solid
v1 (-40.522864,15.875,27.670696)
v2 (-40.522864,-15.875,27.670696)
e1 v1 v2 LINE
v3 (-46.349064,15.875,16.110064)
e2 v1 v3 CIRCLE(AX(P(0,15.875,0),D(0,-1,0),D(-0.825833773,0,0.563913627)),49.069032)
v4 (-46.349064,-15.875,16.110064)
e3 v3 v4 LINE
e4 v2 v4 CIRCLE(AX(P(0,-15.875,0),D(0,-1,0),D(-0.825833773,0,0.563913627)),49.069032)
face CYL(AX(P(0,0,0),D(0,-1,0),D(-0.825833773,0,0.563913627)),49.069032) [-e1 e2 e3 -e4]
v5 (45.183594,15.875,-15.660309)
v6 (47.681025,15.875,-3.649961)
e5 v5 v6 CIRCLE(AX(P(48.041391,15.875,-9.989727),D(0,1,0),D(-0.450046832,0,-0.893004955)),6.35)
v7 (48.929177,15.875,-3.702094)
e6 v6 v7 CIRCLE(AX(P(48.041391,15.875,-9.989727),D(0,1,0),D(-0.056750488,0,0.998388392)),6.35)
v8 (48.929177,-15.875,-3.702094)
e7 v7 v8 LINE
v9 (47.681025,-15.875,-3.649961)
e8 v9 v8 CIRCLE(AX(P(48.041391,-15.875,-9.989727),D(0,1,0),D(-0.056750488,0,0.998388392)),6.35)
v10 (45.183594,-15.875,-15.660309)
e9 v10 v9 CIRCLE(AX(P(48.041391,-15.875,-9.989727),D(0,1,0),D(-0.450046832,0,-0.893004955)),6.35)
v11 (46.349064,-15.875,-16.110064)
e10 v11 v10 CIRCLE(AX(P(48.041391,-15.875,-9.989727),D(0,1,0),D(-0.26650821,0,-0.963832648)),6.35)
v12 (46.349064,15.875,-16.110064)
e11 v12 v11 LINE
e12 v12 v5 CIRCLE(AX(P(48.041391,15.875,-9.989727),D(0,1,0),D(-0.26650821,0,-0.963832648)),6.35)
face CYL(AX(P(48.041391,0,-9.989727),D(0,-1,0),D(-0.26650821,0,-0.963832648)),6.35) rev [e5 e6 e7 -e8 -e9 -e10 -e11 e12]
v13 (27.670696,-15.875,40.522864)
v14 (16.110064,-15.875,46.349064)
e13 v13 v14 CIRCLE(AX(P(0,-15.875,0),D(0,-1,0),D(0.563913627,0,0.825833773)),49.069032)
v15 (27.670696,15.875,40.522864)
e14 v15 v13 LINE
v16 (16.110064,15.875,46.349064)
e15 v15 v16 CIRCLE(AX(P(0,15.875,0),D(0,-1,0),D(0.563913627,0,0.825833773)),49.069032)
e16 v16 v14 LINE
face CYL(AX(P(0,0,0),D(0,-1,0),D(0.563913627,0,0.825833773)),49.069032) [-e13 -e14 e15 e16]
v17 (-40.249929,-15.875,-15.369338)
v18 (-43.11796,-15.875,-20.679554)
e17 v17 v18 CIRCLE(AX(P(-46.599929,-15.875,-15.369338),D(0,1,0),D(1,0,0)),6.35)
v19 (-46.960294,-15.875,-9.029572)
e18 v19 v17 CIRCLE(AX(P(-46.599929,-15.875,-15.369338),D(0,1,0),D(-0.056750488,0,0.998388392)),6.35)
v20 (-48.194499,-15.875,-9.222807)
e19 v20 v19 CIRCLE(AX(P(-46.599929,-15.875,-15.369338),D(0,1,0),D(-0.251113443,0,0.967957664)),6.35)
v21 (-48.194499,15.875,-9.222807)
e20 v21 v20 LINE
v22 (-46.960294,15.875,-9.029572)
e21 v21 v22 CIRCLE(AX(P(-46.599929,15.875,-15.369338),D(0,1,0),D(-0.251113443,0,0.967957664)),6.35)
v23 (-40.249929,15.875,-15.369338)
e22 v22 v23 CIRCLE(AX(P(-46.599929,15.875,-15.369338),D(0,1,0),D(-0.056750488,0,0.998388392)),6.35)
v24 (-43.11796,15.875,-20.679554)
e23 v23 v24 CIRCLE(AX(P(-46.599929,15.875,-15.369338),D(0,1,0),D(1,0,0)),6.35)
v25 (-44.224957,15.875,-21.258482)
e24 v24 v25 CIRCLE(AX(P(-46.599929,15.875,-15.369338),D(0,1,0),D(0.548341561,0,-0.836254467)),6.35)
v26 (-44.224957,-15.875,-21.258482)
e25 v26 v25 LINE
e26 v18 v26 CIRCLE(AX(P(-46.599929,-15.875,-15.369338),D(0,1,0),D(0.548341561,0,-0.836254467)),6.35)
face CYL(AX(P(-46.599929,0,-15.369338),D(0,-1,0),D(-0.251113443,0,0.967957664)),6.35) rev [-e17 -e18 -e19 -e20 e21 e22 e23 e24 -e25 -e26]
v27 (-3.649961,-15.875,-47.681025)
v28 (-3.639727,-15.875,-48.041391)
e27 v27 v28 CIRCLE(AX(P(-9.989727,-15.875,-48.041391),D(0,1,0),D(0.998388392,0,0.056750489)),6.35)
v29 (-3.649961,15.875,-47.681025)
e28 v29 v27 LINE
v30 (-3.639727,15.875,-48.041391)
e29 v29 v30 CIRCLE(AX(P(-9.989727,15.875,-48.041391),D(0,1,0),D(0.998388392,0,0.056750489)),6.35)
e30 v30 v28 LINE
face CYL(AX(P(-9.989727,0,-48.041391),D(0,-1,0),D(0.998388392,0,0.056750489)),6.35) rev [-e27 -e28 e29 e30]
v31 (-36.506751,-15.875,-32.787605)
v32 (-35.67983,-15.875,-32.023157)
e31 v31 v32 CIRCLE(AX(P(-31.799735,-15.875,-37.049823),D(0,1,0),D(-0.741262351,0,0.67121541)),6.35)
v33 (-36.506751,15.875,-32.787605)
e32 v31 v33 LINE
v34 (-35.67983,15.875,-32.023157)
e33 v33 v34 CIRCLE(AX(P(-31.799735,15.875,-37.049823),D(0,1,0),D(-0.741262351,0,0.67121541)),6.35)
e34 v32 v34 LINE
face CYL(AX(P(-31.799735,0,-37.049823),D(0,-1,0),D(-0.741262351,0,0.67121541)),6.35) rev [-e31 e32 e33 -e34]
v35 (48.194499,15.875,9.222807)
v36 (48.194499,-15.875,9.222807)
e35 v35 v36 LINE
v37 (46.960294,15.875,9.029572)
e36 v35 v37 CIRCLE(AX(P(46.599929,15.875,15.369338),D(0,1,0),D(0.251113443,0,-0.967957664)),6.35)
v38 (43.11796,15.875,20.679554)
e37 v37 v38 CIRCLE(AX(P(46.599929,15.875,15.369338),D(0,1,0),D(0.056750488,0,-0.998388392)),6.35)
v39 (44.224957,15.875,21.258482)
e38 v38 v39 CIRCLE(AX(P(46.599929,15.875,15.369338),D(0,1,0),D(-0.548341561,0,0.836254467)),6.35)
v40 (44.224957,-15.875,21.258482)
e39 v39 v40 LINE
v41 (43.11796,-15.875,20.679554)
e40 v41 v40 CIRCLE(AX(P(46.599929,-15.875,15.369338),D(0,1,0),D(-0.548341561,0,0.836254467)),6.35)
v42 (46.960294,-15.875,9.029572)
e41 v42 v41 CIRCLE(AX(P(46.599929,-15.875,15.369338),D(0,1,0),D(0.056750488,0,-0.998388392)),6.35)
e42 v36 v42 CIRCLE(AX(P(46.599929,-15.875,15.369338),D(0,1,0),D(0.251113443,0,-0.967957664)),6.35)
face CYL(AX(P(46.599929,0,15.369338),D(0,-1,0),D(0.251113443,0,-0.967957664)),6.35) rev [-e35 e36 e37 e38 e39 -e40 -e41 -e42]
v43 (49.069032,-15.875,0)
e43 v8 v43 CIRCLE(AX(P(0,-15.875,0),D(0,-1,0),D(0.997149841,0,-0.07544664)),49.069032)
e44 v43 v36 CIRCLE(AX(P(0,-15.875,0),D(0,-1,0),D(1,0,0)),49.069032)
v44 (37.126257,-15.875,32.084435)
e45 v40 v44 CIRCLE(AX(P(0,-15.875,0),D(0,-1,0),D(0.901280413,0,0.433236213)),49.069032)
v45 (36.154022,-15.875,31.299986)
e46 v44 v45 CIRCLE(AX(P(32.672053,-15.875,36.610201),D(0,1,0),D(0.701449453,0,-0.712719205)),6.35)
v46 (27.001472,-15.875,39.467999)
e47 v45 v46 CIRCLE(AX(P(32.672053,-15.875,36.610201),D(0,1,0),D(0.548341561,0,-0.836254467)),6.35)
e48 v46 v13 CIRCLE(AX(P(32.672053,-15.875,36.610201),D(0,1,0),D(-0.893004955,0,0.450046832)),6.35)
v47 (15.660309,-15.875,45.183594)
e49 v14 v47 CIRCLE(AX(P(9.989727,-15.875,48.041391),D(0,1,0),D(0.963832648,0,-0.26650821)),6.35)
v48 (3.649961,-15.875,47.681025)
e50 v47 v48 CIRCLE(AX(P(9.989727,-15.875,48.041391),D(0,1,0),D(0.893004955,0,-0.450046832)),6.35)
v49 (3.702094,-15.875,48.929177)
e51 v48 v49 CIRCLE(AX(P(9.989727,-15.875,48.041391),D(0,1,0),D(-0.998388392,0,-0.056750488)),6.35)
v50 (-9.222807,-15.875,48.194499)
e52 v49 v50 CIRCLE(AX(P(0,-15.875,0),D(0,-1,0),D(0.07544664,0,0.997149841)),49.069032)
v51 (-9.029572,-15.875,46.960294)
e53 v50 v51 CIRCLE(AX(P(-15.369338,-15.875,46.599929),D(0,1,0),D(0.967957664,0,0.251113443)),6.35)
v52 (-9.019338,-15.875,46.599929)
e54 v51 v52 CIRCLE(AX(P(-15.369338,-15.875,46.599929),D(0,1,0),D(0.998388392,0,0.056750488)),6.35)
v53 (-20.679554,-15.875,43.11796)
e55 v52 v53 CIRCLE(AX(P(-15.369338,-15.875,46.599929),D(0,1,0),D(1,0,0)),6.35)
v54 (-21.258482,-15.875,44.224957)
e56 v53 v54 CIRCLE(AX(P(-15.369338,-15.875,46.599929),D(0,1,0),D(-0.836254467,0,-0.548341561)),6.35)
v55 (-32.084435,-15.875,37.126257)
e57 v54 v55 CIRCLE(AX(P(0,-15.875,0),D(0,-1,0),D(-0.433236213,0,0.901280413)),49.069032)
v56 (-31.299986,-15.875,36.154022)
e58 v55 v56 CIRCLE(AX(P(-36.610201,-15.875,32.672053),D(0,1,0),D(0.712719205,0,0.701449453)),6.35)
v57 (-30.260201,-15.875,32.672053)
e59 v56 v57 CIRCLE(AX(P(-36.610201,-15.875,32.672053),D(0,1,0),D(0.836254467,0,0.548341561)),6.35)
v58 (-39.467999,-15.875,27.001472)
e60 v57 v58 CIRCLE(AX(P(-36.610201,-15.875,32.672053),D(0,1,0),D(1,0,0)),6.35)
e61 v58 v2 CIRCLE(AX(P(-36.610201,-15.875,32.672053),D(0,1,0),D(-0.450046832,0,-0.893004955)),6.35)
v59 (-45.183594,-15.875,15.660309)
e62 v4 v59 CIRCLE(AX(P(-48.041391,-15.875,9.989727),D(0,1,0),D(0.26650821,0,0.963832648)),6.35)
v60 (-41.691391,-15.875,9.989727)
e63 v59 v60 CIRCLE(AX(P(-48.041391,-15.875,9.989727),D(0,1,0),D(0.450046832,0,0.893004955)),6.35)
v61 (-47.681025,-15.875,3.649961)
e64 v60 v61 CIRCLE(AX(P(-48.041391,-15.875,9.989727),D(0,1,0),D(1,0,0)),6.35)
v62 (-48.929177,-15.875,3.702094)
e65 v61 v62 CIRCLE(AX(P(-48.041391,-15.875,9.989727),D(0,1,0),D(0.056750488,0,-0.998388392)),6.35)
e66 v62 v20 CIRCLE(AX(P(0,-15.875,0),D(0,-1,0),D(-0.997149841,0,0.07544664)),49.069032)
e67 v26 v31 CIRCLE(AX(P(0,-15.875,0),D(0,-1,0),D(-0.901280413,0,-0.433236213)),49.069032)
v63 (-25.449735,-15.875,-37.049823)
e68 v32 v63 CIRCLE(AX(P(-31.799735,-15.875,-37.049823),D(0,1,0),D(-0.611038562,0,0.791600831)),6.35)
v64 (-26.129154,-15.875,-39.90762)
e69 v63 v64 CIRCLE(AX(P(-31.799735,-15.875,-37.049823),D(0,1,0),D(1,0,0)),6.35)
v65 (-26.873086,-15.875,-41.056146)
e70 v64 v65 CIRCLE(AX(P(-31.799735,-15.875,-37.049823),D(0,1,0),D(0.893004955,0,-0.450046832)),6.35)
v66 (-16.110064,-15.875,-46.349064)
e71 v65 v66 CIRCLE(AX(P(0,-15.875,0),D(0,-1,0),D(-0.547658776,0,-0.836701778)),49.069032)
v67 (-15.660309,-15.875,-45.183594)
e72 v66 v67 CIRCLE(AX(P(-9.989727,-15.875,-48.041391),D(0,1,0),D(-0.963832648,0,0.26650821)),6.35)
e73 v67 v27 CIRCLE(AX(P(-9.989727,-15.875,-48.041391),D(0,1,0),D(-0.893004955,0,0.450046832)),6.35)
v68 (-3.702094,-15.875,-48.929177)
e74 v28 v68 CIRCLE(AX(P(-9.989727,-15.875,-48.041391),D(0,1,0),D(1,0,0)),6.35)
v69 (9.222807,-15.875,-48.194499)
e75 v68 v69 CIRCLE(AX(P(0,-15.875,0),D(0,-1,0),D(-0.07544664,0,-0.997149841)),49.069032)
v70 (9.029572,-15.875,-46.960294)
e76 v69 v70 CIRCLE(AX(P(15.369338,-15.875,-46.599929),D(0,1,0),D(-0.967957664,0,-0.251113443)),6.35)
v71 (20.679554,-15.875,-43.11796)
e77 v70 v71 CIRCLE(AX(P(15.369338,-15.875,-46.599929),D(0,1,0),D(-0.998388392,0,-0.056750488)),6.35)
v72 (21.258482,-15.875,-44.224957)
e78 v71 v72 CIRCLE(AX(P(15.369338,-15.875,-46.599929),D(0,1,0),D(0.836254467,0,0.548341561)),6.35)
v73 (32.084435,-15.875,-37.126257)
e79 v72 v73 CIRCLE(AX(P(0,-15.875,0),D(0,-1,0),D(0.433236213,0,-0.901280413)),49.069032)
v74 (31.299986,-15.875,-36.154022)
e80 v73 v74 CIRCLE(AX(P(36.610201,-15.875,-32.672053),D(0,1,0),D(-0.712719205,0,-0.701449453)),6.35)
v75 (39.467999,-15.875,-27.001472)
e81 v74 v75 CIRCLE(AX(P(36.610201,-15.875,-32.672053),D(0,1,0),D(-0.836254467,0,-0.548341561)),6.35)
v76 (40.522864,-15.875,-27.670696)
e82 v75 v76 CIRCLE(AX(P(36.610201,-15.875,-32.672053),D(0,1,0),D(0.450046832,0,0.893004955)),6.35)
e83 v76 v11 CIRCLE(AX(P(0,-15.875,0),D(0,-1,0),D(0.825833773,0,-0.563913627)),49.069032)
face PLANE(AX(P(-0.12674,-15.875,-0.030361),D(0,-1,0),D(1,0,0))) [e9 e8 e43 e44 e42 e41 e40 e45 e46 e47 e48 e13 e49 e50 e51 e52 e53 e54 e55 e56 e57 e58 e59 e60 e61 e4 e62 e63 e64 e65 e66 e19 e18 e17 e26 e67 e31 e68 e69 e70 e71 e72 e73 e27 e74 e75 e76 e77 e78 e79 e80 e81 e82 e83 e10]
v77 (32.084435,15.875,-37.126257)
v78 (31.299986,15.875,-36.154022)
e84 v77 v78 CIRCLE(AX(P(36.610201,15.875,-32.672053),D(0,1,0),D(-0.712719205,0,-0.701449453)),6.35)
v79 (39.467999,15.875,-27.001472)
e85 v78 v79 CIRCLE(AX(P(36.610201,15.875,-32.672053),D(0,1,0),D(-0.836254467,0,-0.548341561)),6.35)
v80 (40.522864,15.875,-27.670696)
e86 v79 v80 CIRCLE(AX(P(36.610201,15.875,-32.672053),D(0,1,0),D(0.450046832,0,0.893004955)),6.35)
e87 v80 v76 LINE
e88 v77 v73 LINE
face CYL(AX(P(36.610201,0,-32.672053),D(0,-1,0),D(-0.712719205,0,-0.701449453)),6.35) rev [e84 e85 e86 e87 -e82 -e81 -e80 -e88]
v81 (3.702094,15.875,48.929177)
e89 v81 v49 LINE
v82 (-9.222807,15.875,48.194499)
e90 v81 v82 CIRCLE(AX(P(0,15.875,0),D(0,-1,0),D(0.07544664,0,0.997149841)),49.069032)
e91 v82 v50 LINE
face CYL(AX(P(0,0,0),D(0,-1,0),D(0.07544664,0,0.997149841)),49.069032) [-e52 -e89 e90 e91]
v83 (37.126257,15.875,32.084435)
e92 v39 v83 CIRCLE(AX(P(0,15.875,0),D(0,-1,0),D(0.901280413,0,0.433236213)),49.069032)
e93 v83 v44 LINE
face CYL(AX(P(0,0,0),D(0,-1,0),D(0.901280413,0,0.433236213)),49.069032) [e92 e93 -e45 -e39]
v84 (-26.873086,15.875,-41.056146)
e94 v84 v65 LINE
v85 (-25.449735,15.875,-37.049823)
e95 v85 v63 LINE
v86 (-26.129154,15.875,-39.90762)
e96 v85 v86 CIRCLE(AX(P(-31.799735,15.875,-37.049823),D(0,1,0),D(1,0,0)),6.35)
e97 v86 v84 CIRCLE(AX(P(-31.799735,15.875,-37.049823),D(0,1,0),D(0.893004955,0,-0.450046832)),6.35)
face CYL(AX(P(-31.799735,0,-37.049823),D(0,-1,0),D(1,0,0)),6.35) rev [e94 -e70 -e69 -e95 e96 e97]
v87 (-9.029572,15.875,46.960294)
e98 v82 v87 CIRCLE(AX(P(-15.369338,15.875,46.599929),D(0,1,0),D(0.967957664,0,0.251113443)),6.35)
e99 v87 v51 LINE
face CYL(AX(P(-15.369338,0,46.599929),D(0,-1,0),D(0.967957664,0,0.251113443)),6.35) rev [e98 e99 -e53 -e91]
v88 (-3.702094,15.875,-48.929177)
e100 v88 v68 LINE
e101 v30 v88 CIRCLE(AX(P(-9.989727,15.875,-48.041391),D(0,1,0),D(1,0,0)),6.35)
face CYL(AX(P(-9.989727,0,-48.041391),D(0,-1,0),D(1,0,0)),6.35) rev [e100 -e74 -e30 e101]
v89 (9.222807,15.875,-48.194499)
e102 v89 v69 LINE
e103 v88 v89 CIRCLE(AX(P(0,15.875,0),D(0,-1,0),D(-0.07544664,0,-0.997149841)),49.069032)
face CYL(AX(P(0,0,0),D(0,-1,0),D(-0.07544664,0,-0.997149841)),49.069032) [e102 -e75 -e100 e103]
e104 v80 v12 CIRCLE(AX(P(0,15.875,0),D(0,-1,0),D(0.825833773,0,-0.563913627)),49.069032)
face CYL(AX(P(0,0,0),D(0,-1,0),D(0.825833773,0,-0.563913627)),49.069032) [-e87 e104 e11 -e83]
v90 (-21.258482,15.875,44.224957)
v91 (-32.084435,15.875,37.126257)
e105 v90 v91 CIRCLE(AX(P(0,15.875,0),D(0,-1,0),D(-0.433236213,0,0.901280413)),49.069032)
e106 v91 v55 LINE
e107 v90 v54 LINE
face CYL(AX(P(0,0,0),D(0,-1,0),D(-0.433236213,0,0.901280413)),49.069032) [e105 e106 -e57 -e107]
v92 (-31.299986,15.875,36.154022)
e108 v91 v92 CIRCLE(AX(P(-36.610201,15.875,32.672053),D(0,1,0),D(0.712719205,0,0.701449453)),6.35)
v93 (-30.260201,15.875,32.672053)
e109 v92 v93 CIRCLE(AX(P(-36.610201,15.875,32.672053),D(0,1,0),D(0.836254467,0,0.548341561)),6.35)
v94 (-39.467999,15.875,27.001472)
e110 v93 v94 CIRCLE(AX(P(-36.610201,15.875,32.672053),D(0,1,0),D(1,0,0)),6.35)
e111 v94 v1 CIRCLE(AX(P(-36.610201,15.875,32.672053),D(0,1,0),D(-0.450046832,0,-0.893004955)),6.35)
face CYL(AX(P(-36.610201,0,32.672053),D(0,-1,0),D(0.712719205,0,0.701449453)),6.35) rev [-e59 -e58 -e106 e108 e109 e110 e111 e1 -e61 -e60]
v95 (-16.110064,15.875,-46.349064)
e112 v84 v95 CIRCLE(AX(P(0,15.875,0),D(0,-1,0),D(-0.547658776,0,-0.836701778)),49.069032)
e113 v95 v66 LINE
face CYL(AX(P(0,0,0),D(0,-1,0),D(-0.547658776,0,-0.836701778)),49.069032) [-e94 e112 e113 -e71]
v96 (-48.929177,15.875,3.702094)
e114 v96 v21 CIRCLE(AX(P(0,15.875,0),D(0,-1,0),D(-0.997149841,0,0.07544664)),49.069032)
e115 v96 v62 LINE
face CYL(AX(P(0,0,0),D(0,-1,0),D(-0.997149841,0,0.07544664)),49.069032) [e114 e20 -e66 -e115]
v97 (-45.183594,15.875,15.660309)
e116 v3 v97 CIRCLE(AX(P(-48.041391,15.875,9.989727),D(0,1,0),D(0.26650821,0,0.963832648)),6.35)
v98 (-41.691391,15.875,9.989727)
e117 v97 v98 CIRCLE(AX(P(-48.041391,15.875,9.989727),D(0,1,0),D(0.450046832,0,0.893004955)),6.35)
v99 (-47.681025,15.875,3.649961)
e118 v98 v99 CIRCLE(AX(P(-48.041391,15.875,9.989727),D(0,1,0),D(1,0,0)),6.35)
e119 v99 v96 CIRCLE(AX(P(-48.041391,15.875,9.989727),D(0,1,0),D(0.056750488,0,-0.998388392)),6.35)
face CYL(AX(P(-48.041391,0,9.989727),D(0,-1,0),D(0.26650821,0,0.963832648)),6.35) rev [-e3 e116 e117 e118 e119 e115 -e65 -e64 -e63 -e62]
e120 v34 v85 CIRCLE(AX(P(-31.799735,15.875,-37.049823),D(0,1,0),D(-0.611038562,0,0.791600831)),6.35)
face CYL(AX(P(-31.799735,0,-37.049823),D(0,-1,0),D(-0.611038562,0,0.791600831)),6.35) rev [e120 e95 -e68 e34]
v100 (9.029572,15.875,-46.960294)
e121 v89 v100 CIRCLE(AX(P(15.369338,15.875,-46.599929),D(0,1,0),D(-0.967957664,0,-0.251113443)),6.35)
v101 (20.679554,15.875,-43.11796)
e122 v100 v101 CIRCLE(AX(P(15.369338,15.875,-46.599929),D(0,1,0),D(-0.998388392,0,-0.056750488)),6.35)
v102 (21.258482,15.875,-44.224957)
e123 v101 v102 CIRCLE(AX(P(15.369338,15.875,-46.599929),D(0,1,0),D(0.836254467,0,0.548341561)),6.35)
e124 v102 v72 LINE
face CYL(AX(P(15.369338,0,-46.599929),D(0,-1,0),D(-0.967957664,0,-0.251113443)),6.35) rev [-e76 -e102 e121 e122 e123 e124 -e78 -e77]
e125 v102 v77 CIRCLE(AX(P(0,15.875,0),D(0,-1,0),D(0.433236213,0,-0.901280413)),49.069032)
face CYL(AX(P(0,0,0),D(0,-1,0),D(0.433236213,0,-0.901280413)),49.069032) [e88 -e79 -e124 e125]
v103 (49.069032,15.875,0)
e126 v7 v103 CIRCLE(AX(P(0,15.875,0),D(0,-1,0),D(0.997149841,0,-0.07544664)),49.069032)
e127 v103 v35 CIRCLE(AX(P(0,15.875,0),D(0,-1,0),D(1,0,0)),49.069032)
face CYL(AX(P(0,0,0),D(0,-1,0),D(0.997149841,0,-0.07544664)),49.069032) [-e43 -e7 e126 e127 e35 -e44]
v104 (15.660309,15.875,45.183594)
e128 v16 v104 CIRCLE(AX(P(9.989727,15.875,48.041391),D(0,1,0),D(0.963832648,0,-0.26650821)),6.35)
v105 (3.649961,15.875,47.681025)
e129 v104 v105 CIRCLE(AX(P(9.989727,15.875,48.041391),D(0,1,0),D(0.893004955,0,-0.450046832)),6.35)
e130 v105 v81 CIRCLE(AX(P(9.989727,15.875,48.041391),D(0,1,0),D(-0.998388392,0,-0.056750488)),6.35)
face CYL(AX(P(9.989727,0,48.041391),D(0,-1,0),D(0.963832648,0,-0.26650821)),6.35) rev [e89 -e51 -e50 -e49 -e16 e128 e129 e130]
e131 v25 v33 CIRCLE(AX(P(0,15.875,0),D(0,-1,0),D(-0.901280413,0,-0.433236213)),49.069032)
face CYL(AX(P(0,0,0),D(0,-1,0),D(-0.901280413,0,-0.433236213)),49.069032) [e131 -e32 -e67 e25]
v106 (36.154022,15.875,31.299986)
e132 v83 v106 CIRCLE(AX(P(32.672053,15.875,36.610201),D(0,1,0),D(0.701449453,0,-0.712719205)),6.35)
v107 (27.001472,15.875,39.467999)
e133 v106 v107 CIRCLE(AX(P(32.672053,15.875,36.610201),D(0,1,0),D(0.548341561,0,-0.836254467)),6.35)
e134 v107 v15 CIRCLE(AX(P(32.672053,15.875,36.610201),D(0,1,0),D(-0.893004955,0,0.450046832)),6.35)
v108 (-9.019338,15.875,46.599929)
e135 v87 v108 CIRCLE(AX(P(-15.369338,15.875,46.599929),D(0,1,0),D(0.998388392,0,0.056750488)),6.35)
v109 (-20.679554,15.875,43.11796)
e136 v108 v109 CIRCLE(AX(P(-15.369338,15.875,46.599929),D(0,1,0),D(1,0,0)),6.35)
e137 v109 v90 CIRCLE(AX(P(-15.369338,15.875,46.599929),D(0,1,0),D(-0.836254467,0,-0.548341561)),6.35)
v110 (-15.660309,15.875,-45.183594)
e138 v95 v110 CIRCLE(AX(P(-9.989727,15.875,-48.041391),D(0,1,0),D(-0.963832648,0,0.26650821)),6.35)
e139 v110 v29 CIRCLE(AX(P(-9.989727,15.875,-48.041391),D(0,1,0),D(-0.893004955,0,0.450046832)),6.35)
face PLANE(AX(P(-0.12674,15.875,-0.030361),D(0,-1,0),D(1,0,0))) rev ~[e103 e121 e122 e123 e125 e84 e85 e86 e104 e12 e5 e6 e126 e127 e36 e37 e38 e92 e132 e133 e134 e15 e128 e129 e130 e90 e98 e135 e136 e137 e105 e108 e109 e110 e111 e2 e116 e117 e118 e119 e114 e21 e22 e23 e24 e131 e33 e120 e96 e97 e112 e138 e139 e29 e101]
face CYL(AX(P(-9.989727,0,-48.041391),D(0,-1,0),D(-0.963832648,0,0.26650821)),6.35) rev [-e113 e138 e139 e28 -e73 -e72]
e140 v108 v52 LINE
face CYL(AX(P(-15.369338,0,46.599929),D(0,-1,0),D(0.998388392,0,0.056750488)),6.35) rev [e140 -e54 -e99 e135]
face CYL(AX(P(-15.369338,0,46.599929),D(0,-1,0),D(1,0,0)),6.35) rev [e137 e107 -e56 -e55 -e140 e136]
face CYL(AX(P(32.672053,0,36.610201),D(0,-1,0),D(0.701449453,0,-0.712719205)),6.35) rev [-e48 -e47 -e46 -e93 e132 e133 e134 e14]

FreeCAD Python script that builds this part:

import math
import FreeCAD as App
import Part
import Sketcher
from FreeCAD import Vector
Q = App.Units.Quantity

doc = App.newDocument("Part")
params = doc.addObject("Spreadsheet::Sheet", "Params")
for row, (alias, value) in enumerate([
    ("sketch1_radius", "0.25 in"),
    ("pad1_length", "1.25 in"),
], start=1):
    params.set(f"A{row}", alias)
    params.set(f"B{row}", "=" + value)
    params.setAlias(f"B{row}", alias)

body = doc.addObject("PartDesign::Body", "Body")

sketch1 = body.newObject("Sketcher::SketchObject", "Sketch")
sketch1.AttachmentSupport = (doc.getObject("XZ_Plane"), [""])
sketch1.MapMode = "FlatFace"
sketch1.addGeometry(Part.ArcOfCircle(Part.Circle(Vector(-31.799735, -37.049823, 0), Vector(0, 0, 1), 6.35), math.radians(0), math.radians(127.664636)), False)
sketch1.addGeometry(Part.ArcOfCircle(Part.Circle(Vector(-31.799735, -37.049823, 0), Vector(0, 0, 1), 6.35), math.radians(-26.746689), math.radians(0)), False)
sketch1.addGeometry(Part.ArcOfCircle(Part.Circle(Vector(-31.799735, -37.049823, 0), Vector(0, 0, 1), 6.35), math.radians(-39.117817), math.radians(-26.746689)), False)
sketch1.addGeometry(Part.ArcOfCircle(Part.Circle(Vector(0, 0, 0), Vector(0, 0, 1), 49.069032), math.radians(-123.206543), math.radians(-109.166492)), False)
sketch1.addGeometry(Part.ArcOfCircle(Part.Circle(Vector(-9.989727, -48.041391, 0), Vector(0, 0, 1), 6.35), math.radians(153.253311), math.radians(164.54341)), False)
sketch1.addGeometry(Part.ArcOfCircle(Part.Circle(Vector(-9.989727, -48.041391, 0), Vector(0, 0, 1), 6.35), math.radians(3.253311), math.radians(153.253311)), False)
sketch1.addGeometry(Part.ArcOfCircle(Part.Circle(Vector(-9.989727, -48.041391, 0), Vector(0, 0, 1), 6.35), math.radians(0), math.radians(3.253311)), False)
sketch1.addGeometry(Part.ArcOfCircle(Part.Circle(Vector(-9.989727, -48.041391, 0), Vector(0, 0, 1), 6.35), math.radians(-8.036787), math.radians(0)), False)
sketch1.addGeometry(Part.ArcOfCircle(Part.Circle(Vector(0, 0, 0), Vector(0, 0, 1), 49.069032), math.radians(-94.326886), math.radians(-79.166492)), False)
sketch1.addGeometry(Part.ArcOfCircle(Part.Circle(Vector(15.369338, -46.599929, 0), Vector(0, 0, 1), 6.35), math.radians(-176.746689), math.radians(-165.45659)), False)
sketch1.addGeometry(Part.ArcOfCircle(Part.Circle(Vector(15.369338, -46.599929, 0), Vector(0, 0, 1), 6.35), math.radians(33.253311), math.radians(183.253311)), False)
sketch1.addGeometry(Part.ArcOfCircle(Part.Circle(Vector(15.369338, -46.599929, 0), Vector(0, 0, 1), 6.35), math.radians(21.963213), math.radians(33.253311)), False)
sketch1.addGeometry(Part.ArcOfCircle(Part.Circle(Vector(0, 0, 0), Vector(0, 0, 1), 49.069032), math.radians(-64.326886), math.radians(-49.166492)), False)
sketch1.addGeometry(Part.ArcOfCircle(Part.Circle(Vector(36.610201, -32.672053, 0), Vector(0, 0, 1), 6.35), math.radians(-146.746689), math.radians(-135.45659)), False)
sketch1.addGeometry(Part.ArcOfCircle(Part.Circle(Vector(36.610201, -32.672053, 0), Vector(0, 0, 1), 6.35), math.radians(63.253311), math.radians(213.253311)), False)
sketch1.addGeometry(Part.ArcOfCircle(Part.Circle(Vector(36.610201, -32.672053, 0), Vector(0, 0, 1), 6.35), math.radians(51.963213), math.radians(63.253311)), False)
sketch1.addGeometry(Part.ArcOfCircle(Part.Circle(Vector(0, 0, 0), Vector(0, 0, 1), 49.069032), math.radians(-34.326886), math.radians(-19.166492)), False)
sketch1.addGeometry(Part.ArcOfCircle(Part.Circle(Vector(48.041391, -9.989727, 0), Vector(0, 0, 1), 6.35), math.radians(-116.746689), math.radians(-105.45659)), False)
sketch1.addGeometry(Part.ArcOfCircle(Part.Circle(Vector(48.041391, -9.989727, 0), Vector(0, 0, 1), 6.35), math.radians(93.253311), math.radians(243.253311)), False)
sketch1.addGeometry(Part.ArcOfCircle(Part.Circle(Vector(48.041391, -9.989727, 0), Vector(0, 0, 1), 6.35), math.radians(81.963213), math.radians(93.253311)), False)
sketch1.addGeometry(Part.ArcOfCircle(Part.Circle(Vector(0, 0, 0), Vector(0, 0, 1), 49.069032), math.radians(-4.326886), math.radians(0)), False)
sketch1.addGeometry(Part.ArcOfCircle(Part.Circle(Vector(0, 0, 0), Vector(0, 0, 1), 49.069032), math.radians(0), math.radians(10.833508)), False)
sketch1.addGeometry(Part.ArcOfCircle(Part.Circle(Vector(46.599929, 15.369338, 0), Vector(0, 0, 1), 6.35), math.radians(-86.746689), math.radians(-75.45659)), False)
sketch1.addGeometry(Part.ArcOfCircle(Part.Circle(Vector(46.599929, 15.369338, 0), Vector(0, 0, 1), 6.35), math.radians(123.253311), math.radians(273.253311)), False)
sketch1.addGeometry(Part.ArcOfCircle(Part.Circle(Vector(46.599929, 15.369338, 0), Vector(0, 0, 1), 6.35), math.radians(111.963213), math.radians(123.253311)), False)
sketch1.addGeometry(Part.ArcOfCircle(Part.Circle(Vector(0, 0, 0), Vector(0, 0, 1), 49.069032), math.radians(25.673114), math.radians(40.833508)), False)
sketch1.addGeometry(Part.ArcOfCircle(Part.Circle(Vector(32.672053, 36.610201, 0), Vector(0, 0, 1), 6.35), math.radians(-56.746689), math.radians(-45.45659)), False)
sketch1.addGeometry(Part.ArcOfCircle(Part.Circle(Vector(32.672053, 36.610201, 0), Vector(0, 0, 1), 6.35), math.radians(153.253311), math.radians(303.253311)), False)
sketch1.addGeometry(Part.ArcOfCircle(Part.Circle(Vector(32.672053, 36.610201, 0), Vector(0, 0, 1), 6.35), math.radians(141.963213), math.radians(153.253311)), False)
sketch1.addGeometry(Part.ArcOfCircle(Part.Circle(Vector(0, 0, 0), Vector(0, 0, 1), 49.069032), math.radians(55.673114), math.radians(70.833508)), False)
sketch1.addGeometry(Part.ArcOfCircle(Part.Circle(Vector(9.989727, 48.041391, 0), Vector(0, 0, 1), 6.35), math.radians(-26.746689), math.radians(-15.45659)), False)
sketch1.addGeometry(Part.ArcOfCircle(Part.Circle(Vector(9.989727, 48.041391, 0), Vector(0, 0, 1), 6.35), math.radians(-176.746689), math.radians(-26.746689)), False)
sketch1.addGeometry(Part.ArcOfCircle(Part.Circle(Vector(9.989727, 48.041391, 0), Vector(0, 0, 1), 6.35), math.radians(171.963213), math.radians(183.253311)), False)
sketch1.addGeometry(Part.ArcOfCircle(Part.Circle(Vector(0, 0, 0), Vector(0, 0, 1), 49.069032), math.radians(85.673114), math.radians(100.833508)), False)
sketch1.addGeometry(Part.ArcOfCircle(Part.Circle(Vector(-15.369338, 46.599929, 0), Vector(0, 0, 1), 6.35), math.radians(3.253311), math.radians(14.54341)), False)
sketch1.addGeometry(Part.ArcOfCircle(Part.Circle(Vector(-15.369338, 46.599929, 0), Vector(0, 0, 1), 6.35), math.radians(0), math.radians(3.253311)), False)
sketch1.addGeometry(Part.ArcOfCircle(Part.Circle(Vector(-15.369338, 46.599929, 0), Vector(0, 0, 1), 6.35), math.radians(-146.746689), math.radians(0)), False)
sketch1.addGeometry(Part.ArcOfCircle(Part.Circle(Vector(-15.369338, 46.599929, 0), Vector(0, 0, 1), 6.35), math.radians(-158.036787), math.radians(-146.746689)), False)
sketch1.addGeometry(Part.ArcOfCircle(Part.Circle(Vector(0, 0, 0), Vector(0, 0, 1), 49.069032), math.radians(115.673114), math.radians(130.833508)), False)
sketch1.addGeometry(Part.ArcOfCircle(Part.Circle(Vector(-36.610201, 32.672053, 0), Vector(0, 0, 1), 6.35), math.radians(33.253311), math.radians(44.54341)), False)
sketch1.addGeometry(Part.ArcOfCircle(Part.Circle(Vector(-36.610201, 32.672053, 0), Vector(0, 0, 1), 6.35), math.radians(0), math.radians(33.253311)), False)
sketch1.addGeometry(Part.ArcOfCircle(Part.Circle(Vector(-36.610201, 32.672053, 0), Vector(0, 0, 1), 6.35), math.radians(-116.746689), math.radians(0)), False)
sketch1.addGeometry(Part.ArcOfCircle(Part.Circle(Vector(-36.610201, 32.672053, 0), Vector(0, 0, 1), 6.35), math.radians(-128.036787), math.radians(-116.746689)), False)
sketch1.addGeometry(Part.ArcOfCircle(Part.Circle(Vector(0, 0, 0), Vector(0, 0, 1), 49.069032), math.radians(145.673114), math.radians(160.833508)), False)
sketch1.addGeometry(Part.ArcOfCircle(Part.Circle(Vector(-48.041391, 9.989727, 0), Vector(0, 0, 1), 6.35), math.radians(63.253311), math.radians(74.54341)), False)
sketch1.addGeometry(Part.ArcOfCircle(Part.Circle(Vector(-48.041391, 9.989727, 0), Vector(0, 0, 1), 6.35), math.radians(0), math.radians(63.253311)), False)
sketch1.addGeometry(Part.ArcOfCircle(Part.Circle(Vector(-48.041391, 9.989727, 0), Vector(0, 0, 1), 6.35), math.radians(-86.746689), math.radians(0)), False)
sketch1.addGeometry(Part.ArcOfCircle(Part.Circle(Vector(-48.041391, 9.989727, 0), Vector(0, 0, 1), 6.35), math.radians(-98.036787), math.radians(-86.746689)), False)
sketch1.addGeometry(Part.ArcOfCircle(Part.Circle(Vector(0, 0, 0), Vector(0, 0, 1), 49.069032), math.radians(175.673114), math.radians(190.833508)), False)
sketch1.addGeometry(Part.ArcOfCircle(Part.Circle(Vector(-46.599929, -15.369338, 0), Vector(0, 0, 1), 6.35), math.radians(93.253311), math.radians(104.54341)), False)
sketch1.addGeometry(Part.ArcOfCircle(Part.Circle(Vector(-46.599929, -15.369338, 0), Vector(0, 0, 1), 6.35), math.radians(0), math.radians(93.253311)), False)
sketch1.addGeometry(Part.ArcOfCircle(Part.Circle(Vector(-46.599929, -15.369338, 0), Vector(0, 0, 1), 6.35), math.radians(-56.746689), math.radians(0)), False)
sketch1.addGeometry(Part.ArcOfCircle(Part.Circle(Vector(-46.599929, -15.369338, 0), Vector(0, 0, 1), 6.35), math.radians(-68.036787), math.radians(-56.746689)), False)
sketch1.addGeometry(Part.ArcOfCircle(Part.Circle(Vector(0, 0, 0), Vector(0, 0, 1), 49.069032), math.radians(-154.326886), math.radians(-138.072214)), False)
sketch1.addGeometry(Part.ArcOfCircle(Part.Circle(Vector(-31.799735, -37.049823, 0), Vector(0, 0, 1), 6.35), math.radians(127.664636), math.radians(137.83906)), False)
sketch1.addConstraint(Sketcher.Constraint("Tangent", 0, 1, 1, 2))
sketch1.addConstraint(Sketcher.Constraint("Tangent", 1, 1, 2, 2))
sketch1.addConstraint(Sketcher.Constraint("Coincident", 2, 1, 3, 1))
sketch1.addConstraint(Sketcher.Constraint("Coincident", 3, 2, 4, 2))
sketch1.addConstraint(Sketcher.Constraint("Tangent", 4, 1, 5, 2))
sketch1.addConstraint(Sketcher.Constraint("Tangent", 5, 1, 6, 2))
sketch1.addConstraint(Sketcher.Constraint("Tangent", 6, 1, 7, 2))
sketch1.addConstraint(Sketcher.Constraint("Coincident", 7, 1, 8, 1))
sketch1.addConstraint(Sketcher.Constraint("Coincident", 8, 2, 9, 2))
sketch1.addConstraint(Sketcher.Constraint("Tangent", 9, 1, 10, 2))
sketch1.addConstraint(Sketcher.Constraint("Tangent", 10, 1, 11, 2))
sketch1.addConstraint(Sketcher.Constraint("Coincident", 11, 1, 12, 1))
sketch1.addConstraint(Sketcher.Constraint("Coincident", 12, 2, 13, 2))
sketch1.addConstraint(Sketcher.Constraint("Tangent", 13, 1, 14, 2))
sketch1.addConstraint(Sketcher.Constraint("Tangent", 14, 1, 15, 2))
sketch1.addConstraint(Sketcher.Constraint("Coincident", 15, 1, 16, 1))
sketch1.addConstraint(Sketcher.Constraint("Coincident", 16, 2, 17, 2))
sketch1.addConstraint(Sketcher.Constraint("Tangent", 17, 1, 18, 2))
sketch1.addConstraint(Sketcher.Constraint("Tangent", 18, 1, 19, 2))
sketch1.addConstraint(Sketcher.Constraint("Coincident", 19, 1, 20, 1))
sketch1.addConstraint(Sketcher.Constraint("Tangent", 20, 2, 21, 1))
sketch1.addConstraint(Sketcher.Constraint("Coincident", 21, 2, 22, 2))
sketch1.addConstraint(Sketcher.Constraint("Tangent", 22, 1, 23, 2))
sketch1.addConstraint(Sketcher.Constraint("Tangent", 23, 1, 24, 2))
sketch1.addConstraint(Sketcher.Constraint("Coincident", 24, 1, 25, 1))
sketch1.addConstraint(Sketcher.Constraint("Coincident", 25, 2, 26, 2))
sketch1.addConstraint(Sketcher.Constraint("Tangent", 26, 1, 27, 2))
sketch1.addConstraint(Sketcher.Constraint("Tangent", 27, 1, 28, 2))
sketch1.addConstraint(Sketcher.Constraint("Coincident", 28, 1, 29, 1))
sketch1.addConstraint(Sketcher.Constraint("Coincident", 29, 2, 30, 2))
sketch1.addConstraint(Sketcher.Constraint("Tangent", 30, 1, 31, 2))
sketch1.addConstraint(Sketcher.Constraint("Tangent", 31, 1, 32, 2))
sketch1.addConstraint(Sketcher.Constraint("Coincident", 32, 1, 33, 1))
sketch1.addConstraint(Sketcher.Constraint("Coincident", 33, 2, 34, 2))
sketch1.addConstraint(Sketcher.Constraint("Tangent", 34, 1, 35, 2))
sketch1.addConstraint(Sketcher.Constraint("Tangent", 35, 1, 36, 2))
sketch1.addConstraint(Sketcher.Constraint("Tangent", 36, 1, 37, 2))
sketch1.addConstraint(Sketcher.Constraint("Coincident", 37, 1, 38, 1))
sketch1.addConstraint(Sketcher.Constraint("Coincident", 38, 2, 39, 2))
sketch1.addConstraint(Sketcher.Constraint("Tangent", 39, 1, 40, 2))
sketch1.addConstraint(Sketcher.Constraint("Tangent", 40, 1, 41, 2))
sketch1.addConstraint(Sketcher.Constraint("Tangent", 41, 1, 42, 2))
sketch1.addConstraint(Sketcher.Constraint("Coincident", 42, 1, 43, 1))
sketch1.addConstraint(Sketcher.Constraint("Coincident", 43, 2, 44, 2))
sketch1.addConstraint(Sketcher.Constraint("Tangent", 44, 1, 45, 2))
sketch1.addConstraint(Sketcher.Constraint("Tangent", 45, 1, 46, 2))
sketch1.addConstraint(Sketcher.Constraint("Tangent", 46, 1, 47, 2))
sketch1.addConstraint(Sketcher.Constraint("Coincident", 47, 1, 48, 1))
sketch1.addConstraint(Sketcher.Constraint("Coincident", 48, 2, 49, 2))
sketch1.addConstraint(Sketcher.Constraint("Tangent", 49, 1, 50, 2))
sketch1.addConstraint(Sketcher.Constraint("Tangent", 50, 1, 51, 2))
sketch1.addConstraint(Sketcher.Constraint("Tangent", 51, 1, 52, 2))
sketch1.addConstraint(Sketcher.Constraint("Coincident", 52, 1, 53, 1))
sketch1.addConstraint(Sketcher.Constraint("Coincident", 53, 2, 54, 2))
sketch1.addConstraint(Sketcher.Constraint("Tangent", 54, 1, 0, 2))
sketch1.addConstraint(Sketcher.Constraint("Coincident", 3, 3, -1, 1))
sketch1.addConstraint(Sketcher.Constraint("Coincident", 8, 3, -1, 1))
sketch1.addConstraint(Sketcher.Constraint("Coincident", 12, 3, -1, 1))
sketch1.addConstraint(Sketcher.Constraint("Coincident", 16, 3, -1, 1))
sketch1.addConstraint(Sketcher.Constraint("Coincident", 20, 3, -1, 1))
sketch1.addConstraint(Sketcher.Constraint("Coincident", 25, 3, -1, 1))
sketch1.addConstraint(Sketcher.Constraint("Coincident", 29, 3, -1, 1))
sketch1.addConstraint(Sketcher.Constraint("Coincident", 33, 3, -1, 1))
sketch1.addConstraint(Sketcher.Constraint("Coincident", 38, 3, -1, 1))
sketch1.addConstraint(Sketcher.Constraint("Coincident", 43, 3, -1, 1))
sketch1.addConstraint(Sketcher.Constraint("Coincident", 48, 3, -1, 1))
sketch1.addConstraint(Sketcher.Constraint("Coincident", 53, 3, -1, 1))
sketch1.addConstraint(Sketcher.Constraint("Coincident", 2, 3, 0, 3))
sketch1.addConstraint(Sketcher.Constraint("Coincident", 6, 3, 4, 3))
sketch1.addConstraint(Sketcher.Constraint("Coincident", 11, 3, 9, 3))
sketch1.addConstraint(Sketcher.Constraint("Coincident", 15, 3, 13, 3))
sketch1.addConstraint(Sketcher.Constraint("Coincident", 19, 3, 17, 3))
sketch1.addConstraint(Sketcher.Constraint("Coincident", 24, 3, 22, 3))
sketch1.addConstraint(Sketcher.Constraint("Coincident", 28, 3, 26, 3))
sketch1.addConstraint(Sketcher.Constraint("Coincident", 32, 3, 30, 3))
sketch1.addConstraint(Sketcher.Constraint("Coincident", 36, 3, 34, 3))
sketch1.addConstraint(Sketcher.Constraint("Coincident", 41, 3, 39, 3))
sketch1.addConstraint(Sketcher.Constraint("Coincident", 46, 3, 44, 3))
sketch1.addConstraint(Sketcher.Constraint("Coincident", 51, 3, 49, 3))
sketch1.addConstraint(Sketcher.Constraint("Equal", 2, 4))
sketch1.addConstraint(Sketcher.Constraint("Equal", 6, 7))
sketch1.addConstraint(Sketcher.Constraint("Equal", 3, 8))
sketch1.addConstraint(Sketcher.Constraint("Equal", 7, 9))
sketch1.addConstraint(Sketcher.Constraint("Equal", 8, 12))
sketch1.addConstraint(Sketcher.Constraint("Equal", 11, 13))
sketch1.addConstraint(Sketcher.Constraint("Equal", 12, 16))
sketch1.addConstraint(Sketcher.Constraint("Equal", 15, 17))
sketch1.addConstraint(Sketcher.Constraint("Equal", 16, 20))
sketch1.addConstraint(Sketcher.Constraint("Equal", 20, 21))
sketch1.addConstraint(Sketcher.Constraint("Equal", 19, 22))
sketch1.addConstraint(Sketcher.Constraint("Equal", 21, 25))
sketch1.addConstraint(Sketcher.Constraint("Equal", 24, 26))
sketch1.addConstraint(Sketcher.Constraint("Equal", 25, 29))
sketch1.addConstraint(Sketcher.Constraint("Equal", 28, 30))
sketch1.addConstraint(Sketcher.Constraint("Equal", 29, 33))
sketch1.addConstraint(Sketcher.Constraint("Equal", 32, 34))
sketch1.addConstraint(Sketcher.Constraint("Equal", 36, 37))
sketch1.addConstraint(Sketcher.Constraint("Equal", 33, 38))
sketch1.addConstraint(Sketcher.Constraint("Equal", 37, 39))
sketch1.addConstraint(Sketcher.Constraint("Equal", 41, 42))
sketch1.addConstraint(Sketcher.Constraint("Equal", 38, 43))
sketch1.addConstraint(Sketcher.Constraint("Equal", 42, 44))
sketch1.addConstraint(Sketcher.Constraint("Equal", 46, 47))
sketch1.addConstraint(Sketcher.Constraint("Equal", 43, 48))
sketch1.addConstraint(Sketcher.Constraint("Equal", 47, 49))
sketch1.addConstraint(Sketcher.Constraint("Equal", 51, 52))
sketch1.addConstraint(Sketcher.Constraint("Equal", 48, 53))
sketch1.addConstraint(Sketcher.Constraint("Equal", 52, 54))
sketch1.addConstraint(Sketcher.Constraint("Symmetric", 4, 3, 30, 3, -1, 1))
sketch1.addConstraint(Sketcher.Constraint("Symmetric", 9, 3, 34, 3, -1, 1))
sketch1.addConstraint(Sketcher.Constraint("Symmetric", 13, 3, 39, 3, -1, 1))
sketch1.addConstraint(Sketcher.Constraint("Symmetric", 17, 3, 44, 3, -1, 1))
sketch1.addConstraint(Sketcher.Constraint("Symmetric", 22, 3, 49, 3, -1, 1))
sketch1.addConstraint(Sketcher.Constraint("PointOnObject", 20, 2, -1))
sketch1.addConstraint(Sketcher.Constraint("Horizontal", 54, 3, 0, 1))
sketch1.addConstraint(Sketcher.Constraint("Horizontal", 7, 3, 6, 1))
sketch1.addConstraint(Sketcher.Constraint("Horizontal", 37, 3, 35, 1))
sketch1.addConstraint(Sketcher.Constraint("Horizontal", 42, 3, 40, 1))
sketch1.addConstraint(Sketcher.Constraint("Horizontal", 47, 3, 45, 1))
sketch1.addConstraint(Sketcher.Constraint("Horizontal", 52, 3, 50, 1))
sketch1.addConstraint(Sketcher.Constraint("Radius", 0, Q("0.25 in")))
sketch1.addConstraint(Sketcher.Constraint("Radius", 3, 49.069032))
sketch1.addConstraint(Sketcher.Constraint("DistanceX", -1, 1, 13, 3, 36.610201))
sketch1.addConstraint(Sketcher.Constraint("DistanceY", -1, 1, 26, 3, 36.610201))
sketch1.addConstraint(Sketcher.Constraint("DistanceY", 8, 2, -1, 1, 48.194499))
sketch1.addConstraint(Sketcher.Constraint("DistanceX", -1, 1, 14, 1, 39.467999))
sketch1.addConstraint(Sketcher.Constraint("DistanceX", -1, 1, 21, 2, 48.194499))
sketch1.addConstraint(Sketcher.Constraint("DistanceY", -1, 1, 27, 1, 39.467999))
sketch1.addConstraint(Sketcher.Constraint("DistanceX", 41, 1, -1, 1, 39.467999))
sketch1.addConstraint(Sketcher.Constraint("DistanceY", 4, 3, -1, 1, 48.041391))
sketch1.addConstraint(Sketcher.Constraint("DistanceX", -1, 1, 9, 3, 15.369338))
sketch1.addConstraint(Sketcher.Constraint("DistanceX", -1, 1, 17, 3, 48.041391))
sketch1.addConstraint(Sketcher.Constraint("DistanceX", -1, 1, 22, 3, 46.599929))
sketch1.addConstraint(Sketcher.Constraint("DistanceY", 1, 1, -1, 1, 39.90762))
sketch1.addConstraint(Sketcher.Constraint("DistanceX", 4, 1, -1, 1, 15.660309))
sketch1.addConstraint(Sketcher.Constraint("DistanceX", 5, 1, -1, 1, 3.649961))
sketch1.addConstraint(Sketcher.Constraint("DistanceX", -1, 1, 9, 1, 9.029572))
sketch1.addConstraint(Sketcher.Constraint("DistanceY", 10, 1, -1, 1, 43.11796))
sketch1.addConstraint(Sketcher.Constraint("DistanceY", 13, 1, -1, 1, 36.154022))
sketch1.addConstraint(Sketcher.Constraint("DistanceY", 14, 1, -1, 1, 27.001472))
sketch1.addConstraint(Sketcher.Constraint("DistanceY", 17, 1, -1, 1, 15.660309))
sketch1.addConstraint(Sketcher.Constraint("DistanceY", 18, 1, -1, 1, 3.649961))
sketch1.addConstraint(Sketcher.Constraint("DistanceY", -1, 1, 22, 1, 9.029572))
sketch1.addConstraint(Sketcher.Constraint("DistanceX", -1, 1, 23, 1, 43.11796))
sketch1.addConstraint(Sketcher.Constraint("DistanceX", -1, 1, 26, 1, 36.154022))
sketch1.addConstraint(Sketcher.Constraint("DistanceX", -1, 1, 27, 1, 27.001472))
sketch1.addConstraint(Sketcher.Constraint("DistanceX", -1, 1, 30, 1, 15.660309))
sketch1.addConstraint(Sketcher.Constraint("DistanceX", -1, 1, 31, 1, 3.649961))
sketch1.addConstraint(Sketcher.Constraint("DistanceX", 34, 1, -1, 1, 9.029572))
sketch1.addConstraint(Sketcher.Constraint("DistanceY", -1, 1, 36, 1, 43.11796))
sketch1.addConstraint(Sketcher.Constraint("DistanceY", -1, 1, 39, 1, 36.154022))
sketch1.addConstraint(Sketcher.Constraint("DistanceY", -1, 1, 44, 1, 15.660309))
sketch1.addConstraint(Sketcher.Constraint("DistanceY", -1, 1, 46, 1, 3.649961))
sketch1.addConstraint(Sketcher.Constraint("DistanceY", 49, 1, -1, 1, 9.029572))
sketch1.addConstraint(Sketcher.Constraint("DistanceX", 51, 1, -1, 1, 43.11796))
sketch1.addConstraint(Sketcher.Constraint("DistanceX", 53, 2, -1, 1, 36.506751))
sketch1.addConstraint(Sketcher.Constraint("DistanceX", 54, 1, -1, 1, 35.67983))
sketch1.addConstraint(Sketcher.Constraint("DistanceX", 0, 3, -1, 1, 31.799735))
sketch1.addConstraint(Sketcher.Constraint("DistanceX", 4, 3, -1, 1, 9.989727))
sketch1.addConstraint(Sketcher.Constraint("DistanceY", 17, 3, -1, 1, 9.989727))
sketch1.setExpression("Constraints[120]", "Params.sketch1_radius")
pad1 = body.newObject("PartDesign::Pad", "Pad")
pad1.Profile = sketch1
pad1.setExpression("Length", "Params.pad1_length")
pad1.Midplane = True

doc.recompute()
